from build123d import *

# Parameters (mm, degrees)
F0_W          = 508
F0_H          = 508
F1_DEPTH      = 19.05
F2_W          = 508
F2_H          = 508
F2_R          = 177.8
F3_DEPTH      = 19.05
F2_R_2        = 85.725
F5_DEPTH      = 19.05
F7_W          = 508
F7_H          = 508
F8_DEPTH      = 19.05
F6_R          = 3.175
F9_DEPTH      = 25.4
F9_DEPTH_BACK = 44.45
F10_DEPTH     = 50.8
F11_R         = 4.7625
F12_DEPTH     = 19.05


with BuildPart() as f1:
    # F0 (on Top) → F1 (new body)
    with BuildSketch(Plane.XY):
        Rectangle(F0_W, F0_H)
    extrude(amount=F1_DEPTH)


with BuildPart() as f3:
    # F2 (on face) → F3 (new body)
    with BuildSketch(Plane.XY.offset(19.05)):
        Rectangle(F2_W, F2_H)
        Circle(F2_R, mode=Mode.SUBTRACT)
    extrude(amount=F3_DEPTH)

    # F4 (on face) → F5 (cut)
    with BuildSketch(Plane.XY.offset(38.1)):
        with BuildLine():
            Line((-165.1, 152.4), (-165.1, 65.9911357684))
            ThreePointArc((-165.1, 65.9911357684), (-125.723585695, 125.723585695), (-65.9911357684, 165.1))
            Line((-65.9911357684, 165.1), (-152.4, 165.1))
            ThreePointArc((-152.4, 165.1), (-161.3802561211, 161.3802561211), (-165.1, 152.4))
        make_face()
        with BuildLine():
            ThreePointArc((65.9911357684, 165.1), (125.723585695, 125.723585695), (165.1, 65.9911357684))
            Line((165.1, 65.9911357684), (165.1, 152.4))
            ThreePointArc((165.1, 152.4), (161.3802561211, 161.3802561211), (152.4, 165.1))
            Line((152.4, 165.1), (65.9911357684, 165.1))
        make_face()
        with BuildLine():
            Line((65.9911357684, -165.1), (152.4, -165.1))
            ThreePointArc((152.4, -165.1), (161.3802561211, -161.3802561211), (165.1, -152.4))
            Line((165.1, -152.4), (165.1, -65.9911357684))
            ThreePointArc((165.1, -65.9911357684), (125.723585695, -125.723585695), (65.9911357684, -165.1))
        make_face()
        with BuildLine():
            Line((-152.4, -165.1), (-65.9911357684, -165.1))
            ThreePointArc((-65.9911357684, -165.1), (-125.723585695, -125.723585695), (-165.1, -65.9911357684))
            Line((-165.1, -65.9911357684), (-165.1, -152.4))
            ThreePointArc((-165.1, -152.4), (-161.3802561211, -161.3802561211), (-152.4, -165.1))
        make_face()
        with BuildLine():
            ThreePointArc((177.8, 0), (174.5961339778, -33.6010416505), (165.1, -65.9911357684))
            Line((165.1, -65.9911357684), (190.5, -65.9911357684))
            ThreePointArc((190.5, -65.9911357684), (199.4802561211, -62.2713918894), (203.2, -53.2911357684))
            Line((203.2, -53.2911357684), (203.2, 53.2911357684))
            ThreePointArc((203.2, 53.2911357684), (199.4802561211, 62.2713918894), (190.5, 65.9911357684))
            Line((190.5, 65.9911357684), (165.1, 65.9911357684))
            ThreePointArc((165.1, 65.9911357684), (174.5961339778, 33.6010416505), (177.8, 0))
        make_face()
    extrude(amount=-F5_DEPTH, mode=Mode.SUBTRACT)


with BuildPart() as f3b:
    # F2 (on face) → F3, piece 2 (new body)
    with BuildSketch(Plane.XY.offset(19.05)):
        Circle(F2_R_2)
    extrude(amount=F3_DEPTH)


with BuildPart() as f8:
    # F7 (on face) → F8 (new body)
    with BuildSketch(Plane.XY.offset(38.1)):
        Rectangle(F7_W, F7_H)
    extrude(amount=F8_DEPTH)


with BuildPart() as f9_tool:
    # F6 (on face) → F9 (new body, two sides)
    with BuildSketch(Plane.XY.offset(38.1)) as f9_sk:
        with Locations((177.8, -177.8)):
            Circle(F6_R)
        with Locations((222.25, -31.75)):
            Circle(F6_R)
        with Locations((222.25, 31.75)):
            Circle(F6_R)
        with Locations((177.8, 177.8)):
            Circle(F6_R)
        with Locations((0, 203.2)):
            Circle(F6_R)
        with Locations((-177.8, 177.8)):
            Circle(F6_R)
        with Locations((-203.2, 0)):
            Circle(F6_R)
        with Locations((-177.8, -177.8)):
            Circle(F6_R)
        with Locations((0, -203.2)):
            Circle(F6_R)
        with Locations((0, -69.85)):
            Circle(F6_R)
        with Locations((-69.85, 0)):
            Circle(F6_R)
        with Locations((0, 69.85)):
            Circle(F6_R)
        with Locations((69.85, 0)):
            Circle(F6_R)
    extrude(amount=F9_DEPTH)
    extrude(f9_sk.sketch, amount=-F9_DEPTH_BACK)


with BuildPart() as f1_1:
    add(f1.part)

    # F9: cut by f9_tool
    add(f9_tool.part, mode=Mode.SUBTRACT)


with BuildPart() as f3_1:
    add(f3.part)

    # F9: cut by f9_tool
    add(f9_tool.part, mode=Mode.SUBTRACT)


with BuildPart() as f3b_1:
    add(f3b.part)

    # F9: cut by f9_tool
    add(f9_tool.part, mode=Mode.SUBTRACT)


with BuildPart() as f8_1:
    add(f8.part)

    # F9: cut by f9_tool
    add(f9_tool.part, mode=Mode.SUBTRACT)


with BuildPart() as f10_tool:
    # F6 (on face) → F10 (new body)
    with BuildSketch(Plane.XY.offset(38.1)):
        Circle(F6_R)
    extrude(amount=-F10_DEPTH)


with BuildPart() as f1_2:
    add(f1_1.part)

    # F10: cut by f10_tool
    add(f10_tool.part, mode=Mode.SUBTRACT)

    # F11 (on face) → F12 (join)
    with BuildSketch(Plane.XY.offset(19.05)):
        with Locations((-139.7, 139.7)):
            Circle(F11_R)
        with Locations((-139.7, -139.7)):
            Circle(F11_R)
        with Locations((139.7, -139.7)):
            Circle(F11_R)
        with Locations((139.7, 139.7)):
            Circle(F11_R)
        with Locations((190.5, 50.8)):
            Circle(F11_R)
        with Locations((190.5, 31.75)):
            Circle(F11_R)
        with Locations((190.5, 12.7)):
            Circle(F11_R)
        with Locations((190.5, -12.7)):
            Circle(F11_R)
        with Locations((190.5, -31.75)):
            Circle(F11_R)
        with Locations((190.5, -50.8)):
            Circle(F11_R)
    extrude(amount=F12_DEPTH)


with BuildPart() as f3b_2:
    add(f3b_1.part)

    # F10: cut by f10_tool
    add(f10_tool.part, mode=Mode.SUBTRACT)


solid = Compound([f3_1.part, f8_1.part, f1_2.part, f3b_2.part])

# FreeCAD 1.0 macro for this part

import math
import FreeCAD as App
import Part
import Sketcher

V = App.Vector
Q = App.Units.Quantity


def add_polygon(sketch, points):
    """Adds a closed chain of lines whose ends are joined by coincident constraints."""
    first, n = sketch.GeometryCount, len(points)
    for a, b in zip(points, points[1:] + points[:1]):
        sketch.addGeometry(Part.LineSegment(App.Vector(*a, 0), App.Vector(*b, 0)), False)
    for i in range(n):
        sketch.addConstraint(Sketcher.Constraint("Coincident", first + i, 2, first + (i + 1) % n, 1))

doc = App.newDocument("Part")
body = doc.addObject("PartDesign::Body", "Body")

# Sketch on XY plane
sketch1 = body.newObject("Sketcher::SketchObject", "Sketch")
sketch1.AttachmentSupport = (doc.getObject("XY_Plane"), [""])
sketch1.MapMode = "FlatFace"
add_polygon(sketch1, [(-254, 254), (-254, -254), (254, -254), (254, 254)])  # lines 0-3
sketch1.addConstraint(Sketcher.Constraint("Vertical", 0))
sketch1.addConstraint(Sketcher.Constraint("Horizontal", 1))
sketch1.addConstraint(Sketcher.Constraint("Vertical", 2))
sketch1.addConstraint(Sketcher.Constraint("Horizontal", 3))
sketch1.addConstraint(Sketcher.Constraint("Symmetric", 0, 2, 2, 2, -1, 1))
sketch1.addConstraint(Sketcher.Constraint("Equal", 3, 0))
sketch1.addConstraint(Sketcher.Constraint("DistanceX", 1, 1, 1, 2, Q("20 in")))
pad1 = body.newObject("PartDesign::Pad", "Pad")
pad1.Profile = sketch1
pad1.Length = Q("0.75 in")
body2 = doc.addObject("PartDesign::Body", "Body001")

# Sketch on XY plane
sketch2 = body2.newObject("Sketcher::SketchObject", "Sketch001")
sketch2.AttachmentSupport = (doc.getObject("XY_Plane001"), [""])
sketch2.MapMode = "FlatFace"
sketch2.AttachmentOffset = App.Placement(V(0, 0, 0.75 * 25.4), App.Rotation())
add_polygon(sketch2, [(-254, 254), (-254, -254), (254, -254), (254, 254)])  # lines 0-3
sketch2.addGeometry(Part.Circle(V(0, 0, 0), V(0, 0, 1), 177.8), False)  # 4
sketch2.addConstraint(Sketcher.Constraint("Vertical", 0))
sketch2.addConstraint(Sketcher.Constraint("Horizontal", 1))
sketch2.addConstraint(Sketcher.Constraint("Vertical", 2))
sketch2.addConstraint(Sketcher.Constraint("Horizontal", 3))
sketch2.addConstraint(Sketcher.Constraint("Coincident", 4, 3, -1, 1))
sketch2.addConstraint(Sketcher.Constraint("Symmetric", 0, 2, 2, 2, -1, 1))
sketch2.addConstraint(Sketcher.Constraint("Equal", 3, 0))
sketch2.addConstraint(Sketcher.Constraint("Diameter", 4, Q("14 in")))
sketch2.addConstraint(Sketcher.Constraint("DistanceX", 1, 1, 1, 2, Q("20 in")))
pad2 = body2.newObject("PartDesign::Pad", "Pad001")
pad2.Profile = sketch2
pad2.Length = Q("0.75 in")

# Sketch on XY plane
sketch3 = body2.newObject("Sketcher::SketchObject", "Sketch002")
sketch3.AttachmentSupport = (doc.getObject("XY_Plane001"), [""])
sketch3.MapMode = "FlatFace"
sketch3.AttachmentOffset = App.Placement(V(0, 0, 1.5 * 25.4), App.Rotation())
sketch3.addGeometry(Part.LineSegment(V(-165.1, 152.4, 0), V(-165.1, 65.991136, 0)), False)
sketch3.addGeometry(Part.ArcOfCircle(Part.Circle(V(0, 0, 0), V(0, 0, 1), 177.8), math.radians(111.786789), math.radians(158.213211)), False)
sketch3.addGeometry(Part.LineSegment(V(-65.991136, 165.1, 0), V(-152.4, 165.1, 0)), False)
sketch3.addGeometry(Part.ArcOfCircle(Part.Circle(V(-152.4, 152.4, 0), V(0, 0, 1), 12.7), math.radians(90), math.radians(180)), False)
sketch3.addGeometry(Part.ArcOfCircle(Part.Circle(V(0, 0, 0), V(0, 0, 1), 177.8), math.radians(21.786789), math.radians(68.213211)), False)
sketch3.addGeometry(Part.LineSegment(V(165.1, 65.991136, 0), V(165.1, 152.4, 0)), False)
sketch3.addGeometry(Part.ArcOfCircle(Part.Circle(V(152.4, 152.4, 0), V(0, 0, 1), 12.7), math.radians(0), math.radians(90)), False)
sketch3.addGeometry(Part.LineSegment(V(152.4, 165.1, 0), V(65.991136, 165.1, 0)), False)
sketch3.addGeometry(Part.LineSegment(V(65.991136, -165.1, 0), V(152.4, -165.1, 0)), False)
sketch3.addGeometry(Part.ArcOfCircle(Part.Circle(V(152.4, -152.4, 0), V(0, 0, 1), 12.7), math.radians(-90), math.radians(0)), False)
sketch3.addGeometry(Part.LineSegment(V(165.1, -152.4, 0), V(165.1, -65.991136, 0)), False)
sketch3.addGeometry(Part.ArcOfCircle(Part.Circle(V(0, 0, 0), V(0, 0, 1), 177.8), math.radians(-68.213211), math.radians(-21.786789)), False)
sketch3.addGeometry(Part.LineSegment(V(-152.4, -165.1, 0), V(-65.991136, -165.1, 0)), False)
sketch3.addGeometry(Part.ArcOfCircle(Part.Circle(V(0, 0, 0), V(0, 0, 1), 177.8), math.radians(-158.213211), math.radians(-111.786789)), False)
sketch3.addGeometry(Part.LineSegment(V(-165.1, -65.991136, 0), V(-165.1, -152.4, 0)), False)
sketch3.addGeometry(Part.ArcOfCircle(Part.Circle(V(-152.4, -152.4, 0), V(0, 0, 1), 12.7), math.radians(180), math.radians(270)), False)
sketch3.addGeometry(Part.ArcOfCircle(Part.Circle(V(0, 0, 0), V(0, 0, 1), 177.8), math.radians(-21.786789), math.radians(0)), False)
sketch3.addGeometry(Part.LineSegment(V(165.1, -65.991136, 0), V(190.5, -65.991136, 0)), False)
sketch3.addGeometry(Part.ArcOfCircle(Part.Circle(V(190.5, -53.291136, 0), V(0, 0, 1), 12.7), math.radians(-90), math.radians(0)), False)
sketch3.addGeometry(Part.LineSegment(V(203.2, -53.291136, 0), V(203.2, 53.291136, 0)), False)
sketch3.addGeometry(Part.ArcOfCircle(Part.Circle(V(190.5, 53.291136, 0), V(0, 0, 1), 12.7), math.radians(0), math.radians(90)), False)
sketch3.addGeometry(Part.LineSegment(V(190.5, 65.991136, 0), V(165.1, 65.991136, 0)), False)
sketch3.addGeometry(Part.ArcOfCircle(Part.Circle(V(0, 0, 0), V(0, 0, 1), 177.8), math.radians(0), math.radians(21.786789)), False)
sketch3.addConstraint(Sketcher.Constraint("Coincident", 0, 2, 1, 2))
sketch3.addConstraint(Sketcher.Constraint("Coincident", 1, 1, 2, 1))
sketch3.addConstraint(Sketcher.Constraint("Tangent", 2, 2, 3, 1))
sketch3.addConstraint(Sketcher.Constraint("Tangent", 3, 2, 0, 1))
sketch3.addConstraint(Sketcher.Constraint("Coincident", 4, 1, 5, 1))
sketch3.addConstraint(Sketcher.Constraint("Tangent", 5, 2, 6, 1))
sketch3.addConstraint(Sketcher.Constraint("Tangent", 6, 2, 7, 1))
sketch3.addConstraint(Sketcher.Constraint("Coincident", 7, 2, 4, 2))
sketch3.addConstraint(Sketcher.Constraint("Tangent", 8, 2, 9, 1))
sketch3.addConstraint(Sketcher.Constraint("Tangent", 9, 2, 10, 1))
sketch3.addConstraint(Sketcher.Constraint("Coincident", 10, 2, 11, 2))
sketch3.addConstraint(Sketcher.Constraint("Coincident", 11, 1, 8, 1))
sketch3.addConstraint(Sketcher.Constraint("Coincident", 12, 2, 13, 2))
sketch3.addConstraint(Sketcher.Constraint("Coincident", 13, 1, 14, 1))
sketch3.addConstraint(Sketcher.Constraint("Tangent", 14, 2, 15, 1))
sketch3.addConstraint(Sketcher.Constraint("Tangent", 15, 2, 12, 1))
sketch3.addConstraint(Sketcher.Constraint("Coincident", 16, 1, 17, 1))
sketch3.addConstraint(Sketcher.Constraint("Tangent", 17, 2, 18, 1))
sketch3.addConstraint(Sketcher.Constraint("Tangent", 18, 2, 19, 1))
sketch3.addConstraint(Sketcher.Constraint("Tangent", 19, 2, 20, 1))
sketch3.addConstraint(Sketcher.Constraint("Tangent", 20, 2, 21, 1))
sketch3.addConstraint(Sketcher.Constraint("Coincident", 21, 2, 22, 2))
sketch3.addConstraint(Sketcher.Constraint("Tangent", 22, 1, 16, 2))
sketch3.addConstraint(Sketcher.Constraint("Vertical", 0))
sketch3.addConstraint(Sketcher.Constraint("Horizontal", 2))
sketch3.addConstraint(Sketcher.Constraint("Vertical", 5))
sketch3.addConstraint(Sketcher.Constraint("Horizontal", 7))
sketch3.addConstraint(Sketcher.Constraint("Horizontal", 8))
sketch3.addConstraint(Sketcher.Constraint("Vertical", 10))
sketch3.addConstraint(Sketcher.Constraint("Horizontal", 12))
sketch3.addConstraint(Sketcher.Constraint("Vertical", 14))
sketch3.addConstraint(Sketcher.Constraint("Horizontal", 17))
sketch3.addConstraint(Sketcher.Constraint("Vertical", 19))
sketch3.addConstraint(Sketcher.Constraint("Horizontal", 21))
sketch3.addConstraint(Sketcher.Constraint("Coincident", 1, 3, -1, 1))
sketch3.addConstraint(Sketcher.Constraint("Coincident", 4, 3, -1, 1))
sketch3.addConstraint(Sketcher.Constraint("Coincident", 11, 3, -1, 1))
sketch3.addConstraint(Sketcher.Constraint("Coincident", 13, 3, -1, 1))
sketch3.addConstraint(Sketcher.Constraint("Coincident", 16, 3, -1, 1))
sketch3.addConstraint(Sketcher.Constraint("Coincident", 16, 1, 10, 2))
sketch3.addConstraint(Sketcher.Constraint("Coincident", 21, 2, 4, 1))
sketch3.addConstraint(Sketcher.Constraint("Equal", 1, 4))
sketch3.addConstraint(Sketcher.Constraint("Equal", 3, 6))
sketch3.addConstraint(Sketcher.Constraint("Equal", 6, 9))
sketch3.addConstraint(Sketcher.Constraint("Equal", 4, 11))
sketch3.addConstraint(Sketcher.Constraint("Equal", 11, 13))
sketch3.addConstraint(Sketcher.Constraint("Equal", 9, 15))
sketch3.addConstraint(Sketcher.Constraint("Equal", 15, 18))
sketch3.addConstraint(Sketcher.Constraint("Equal", 18, 20))
sketch3.addConstraint(Sketcher.Constraint("Symmetric", 3, 3, 9, 3, -1, 1))
sketch3.addConstraint(Sketcher.Constraint("Symmetric", 6, 3, 15, 3, -1, 1))
sketch3.addConstraint(Sketcher.Constraint("Symmetric", 3, 3, 6, 3, -2))
sketch3.addConstraint(Sketcher.Constraint("PointOnObject", 22, 1, -1))
sketch3.addConstraint(Sketcher.Constraint("Equal", 12, 0))
sketch3.addConstraint(Sketcher.Constraint("Radius", 1, Q("7 in")))
sketch3.addConstraint(Sketcher.Constraint("Radius", 3, Q("0.5 in")))
sketch3.addConstraint(Sketcher.Constraint("DistanceX", 17, 1, 17, 2, Q("1 in")))
sketch3.addConstraint(Sketcher.Constraint("DistanceX", 3, 3, -1, 1, Q("6 in")))
pocket1 = body2.newObject("PartDesign::Pocket", "Pocket")
pocket1.Profile = sketch3
pocket1.Length = Q("0.75 in")
body3 = doc.addObject("PartDesign::Body", "Body002")

# Sketch on XY plane
sketch4 = body3.newObject("Sketcher::SketchObject", "Sketch003")
sketch4.AttachmentSupport = (doc.getObject("XY_Plane002"), [""])
sketch4.MapMode = "FlatFace"
sketch4.AttachmentOffset = App.Placement(V(0, 0, 0.75 * 25.4), App.Rotation())
sketch4.addGeometry(Part.Circle(V(0, 0, 0), V(0, 0, 1), 85.725), False)
sketch4.addConstraint(Sketcher.Constraint("Coincident", 0, 3, -1, 1))
sketch4.addConstraint(Sketcher.Constraint("Diameter", 0, Q("6.75 in")))
pad3 = body3.newObject("PartDesign::Pad", "Pad002")
pad3.Profile = sketch4
pad3.Length = Q("0.75 in")
body4 = doc.addObject("PartDesign::Body", "Body003")

# Sketch on XY plane
sketch5 = body4.newObject("Sketcher::SketchObject", "Sketch004")
sketch5.AttachmentSupport = (doc.getObject("XY_Plane003"), [""])
sketch5.MapMode = "FlatFace"
sketch5.AttachmentOffset = App.Placement(V(0, 0, 1.5 * 25.4), App.Rotation())
add_polygon(sketch5, [(-254, 254), (-254, -254), (254, -254), (254, 254)])  # lines 0-3
sketch5.addConstraint(Sketcher.Constraint("Vertical", 0))
sketch5.addConstraint(Sketcher.Constraint("Horizontal", 1))
sketch5.addConstraint(Sketcher.Constraint("Vertical", 2))
sketch5.addConstraint(Sketcher.Constraint("Horizontal", 3))
sketch5.addConstraint(Sketcher.Constraint("Symmetric", 0, 2, 2, 2, -1, 1))
sketch5.addConstraint(Sketcher.Constraint("Equal", 3, 0))
sketch5.addConstraint(Sketcher.Constraint("DistanceX", 1, 1, 1, 2, Q("20 in")))
pad4 = body4.newObject("PartDesign::Pad", "Pad003")
pad4.Profile = sketch5
pad4.Length = Q("0.75 in")
body5 = doc.addObject("PartDesign::Body", "Body004")
body5.AllowCompound = True

# Sketch on XY plane
sketch6 = body5.newObject("Sketcher::SketchObject", "Sketch005")
sketch6.AttachmentSupport = (doc.getObject("XY_Plane004"), [""])
sketch6.MapMode = "FlatFace"
sketch6.AttachmentOffset = App.Placement(V(0, 0, 1.5 * 25.4), App.Rotation())
sketch6.addGeometry(Part.Circle(V(177.8, -177.8, 0), V(0, 0, 1), 3.175), False)
sketch6.addGeometry(Part.Circle(V(222.25, -31.75, 0), V(0, 0, 1), 3.175), False)
sketch6.addGeometry(Part.Circle(V(222.25, 31.75, 0), V(0, 0, 1), 3.175), False)
sketch6.addGeometry(Part.Circle(V(177.8, 177.8, 0), V(0, 0, 1), 3.175), False)
sketch6.addGeometry(Part.Circle(V(0, 203.2, 0), V(0, 0, 1), 3.175), False)
sketch6.addGeometry(Part.Circle(V(-177.8, 177.8, 0), V(0, 0, 1), 3.175), False)
sketch6.addGeometry(Part.Circle(V(-203.2, 0, 0), V(0, 0, 1), 3.175), False)
sketch6.addGeometry(Part.Circle(V(-177.8, -177.8, 0), V(0, 0, 1), 3.175), False)
sketch6.addGeometry(Part.Circle(V(0, -203.2, 0), V(0, 0, 1), 3.175), False)
sketch6.addGeometry(Part.Circle(V(0, -69.85, 0), V(0, 0, 1), 3.175), False)
sketch6.addGeometry(Part.Circle(V(-69.85, 0, 0), V(0, 0, 1), 3.175), False)
sketch6.addGeometry(Part.Circle(V(0, 69.85, 0), V(0, 0, 1), 3.175), False)
sketch6.addGeometry(Part.Circle(V(69.85, 0, 0), V(0, 0, 1), 3.175), False)
sketch6.addConstraint(Sketcher.Constraint("Equal", 0, 1))
sketch6.addConstraint(Sketcher.Constraint("Equal", 1, 2))
sketch6.addConstraint(Sketcher.Constraint("Equal", 2, 3))
sketch6.addConstraint(Sketcher.Constraint("Equal", 3, 4))
sketch6.addConstraint(Sketcher.Constraint("Equal", 4, 5))
sketch6.addConstraint(Sketcher.Constraint("Equal", 5, 6))
sketch6.addConstraint(Sketcher.Constraint("Equal", 6, 7))
sketch6.addConstraint(Sketcher.Constraint("Equal", 7, 8))
sketch6.addConstraint(Sketcher.Constraint("Equal", 8, 9))
sketch6.addConstraint(Sketcher.Constraint("Equal", 9, 10))
sketch6.addConstraint(Sketcher.Constraint("Equal", 10, 11))
sketch6.addConstraint(Sketcher.Constraint("Equal", 11, 12))
sketch6.addConstraint(Sketcher.Constraint("Symmetric", 0, 3, 5, 3, -1, 1))
sketch6.addConstraint(Sketcher.Constraint("Symmetric", 3, 3, 7, 3, -1, 1))
sketch6.addConstraint(Sketcher.Constraint("Symmetric", 4, 3, 8, 3, -1, 1))
sketch6.addConstraint(Sketcher.Constraint("Symmetric", 9, 3, 11, 3, -1, 1))
sketch6.addConstraint(Sketcher.Constraint("Symmetric", 10, 3, 12, 3, -1, 1))
sketch6.addConstraint(Sketcher.Constraint("Symmetric", 3, 3, 5, 3, -2))
sketch6.addConstraint(Sketcher.Constraint("Symmetric", 1, 3, 2, 3, -1))
sketch6.addConstraint(Sketcher.Constraint("PointOnObject", 4, 3, -2))
sketch6.addConstraint(Sketcher.Constraint("PointOnObject", 6, 3, -1))
sketch6.addConstraint(Sketcher.Constraint("PointOnObject", 9, 3, -2))
sketch6.addConstraint(Sketcher.Constraint("PointOnObject", 10, 3, -1))
sketch6.addConstraint(Sketcher.Constraint("Diameter", 0, Q("0.25 in")))
sketch6.addConstraint(Sketcher.Constraint("DistanceX", -1, 1, 0, 3, Q("7 in")))
sketch6.addConstraint(Sketcher.Constraint("DistanceY", 0, 3, -1, 1, Q("7 in")))
sketch6.addConstraint(Sketcher.Constraint("DistanceY", -1, 1, 4, 3, Q("8 in")))
sketch6.addConstraint(Sketcher.Constraint("DistanceX", 6, 3, -1, 1, Q("8 in")))
sketch6.addConstraint(Sketcher.Constraint("DistanceX", 12, 3, 1, 3, Q("6 in")))
sketch6.addConstraint(Sketcher.Constraint("DistanceY", 1, 3, 2, 3, Q("2.5 in")))
sketch6.addConstraint(Sketcher.Constraint("DistanceY", 9, 3, 1, 3, Q("1.5 in")))
sketch6.addConstraint(Sketcher.Constraint("DistanceX", 10, 3, 12, 3, Q("5.5 in")))
pad5 = body5.newObject("PartDesign::Pad", "Pad004")
pad5.Profile = sketch6
pad5.Type = "TwoLengths"
pad5.Length = Q("1 in")
pad5.Length2 = Q("1.75 in")
doc.recompute()

body6 = doc.addObject("PartDesign::Body", "Body005")
body6.BaseFeature = body5
boolean = body.newObject("PartDesign::Boolean", "Boolean")
boolean.Type = "Cut"
boolean.addObjects([body6])
doc.recompute()

body7 = doc.addObject("PartDesign::Body", "Body006")
body7.BaseFeature = body5
boolean2 = body2.newObject("PartDesign::Boolean", "Boolean001")
boolean2.Type = "Cut"
boolean2.addObjects([body7])
doc.recompute()

body8 = doc.addObject("PartDesign::Body", "Body007")
body8.BaseFeature = body5
boolean3 = body3.newObject("PartDesign::Boolean", "Boolean002")
boolean3.Type = "Cut"
boolean3.addObjects([body8])
doc.recompute()

boolean4 = body4.newObject("PartDesign::Boolean", "Boolean003")
boolean4.Type = "Cut"
boolean4.addObjects([body5])
body9 = doc.addObject("PartDesign::Body", "Body008")

# Sketch on XY plane
sketch7 = body9.newObject("Sketcher::SketchObject", "Sketch006")
sketch7.AttachmentSupport = (doc.getObject("XY_Plane008"), [""])
sketch7.MapMode = "FlatFace"
sketch7.AttachmentOffset = App.Placement(V(0, 0, 1.5 * 25.4), App.Rotation())
sketch7.addGeometry(Part.Circle(V(0, 0, 0), V(0, 0, 1), 3.175), False)
sketch7.addConstraint(Sketcher.Constraint("Coincident", 0, 3, -1, 1))
sketch7.addConstraint(Sketcher.Constraint("Diameter", 0, Q("0.25 in")))
pad6 = body9.newObject("PartDesign::Pad", "Pad005")
pad6.Profile = sketch7
pad6.Length = Q("2 in")
pad6.Reversed = True
doc.recompute()

body10 = doc.addObject("PartDesign::Body", "Body009")
body10.BaseFeature = body9
boolean5 = body.newObject("PartDesign::Boolean", "Boolean004")
boolean5.Type = "Cut"
boolean5.addObjects([body10])
doc.recompute()

# Sketch on XY plane
sketch8 = body.newObject("Sketcher::SketchObject", "Sketch007")
sketch8.AttachmentSupport = (doc.getObject("XY_Plane"), [""])
sketch8.MapMode = "FlatFace"
sketch8.AttachmentOffset = App.Placement(V(0, 0, 0.75 * 25.4), App.Rotation())
sketch8.addGeometry(Part.Circle(V(-139.7, 139.7, 0), V(0, 0, 1), 4.7625), False)
sketch8.addGeometry(Part.Circle(V(-139.7, -139.7, 0), V(0, 0, 1), 4.7625), False)
sketch8.addGeometry(Part.Circle(V(139.7, -139.7, 0), V(0, 0, 1), 4.7625), False)
sketch8.addGeometry(Part.Circle(V(139.7, 139.7, 0), V(0, 0, 1), 4.7625), False)
sketch8.addGeometry(Part.Circle(V(190.5, 50.8, 0), V(0, 0, 1), 4.7625), False)
sketch8.addGeometry(Part.Circle(V(190.5, 31.75, 0), V(0, 0, 1), 4.7625), False)
sketch8.addGeometry(Part.Circle(V(190.5, 12.7, 0), V(0, 0, 1), 4.7625), False)
sketch8.addGeometry(Part.Circle(V(190.5, -12.7, 0), V(0, 0, 1), 4.7625), False)
sketch8.addGeometry(Part.Circle(V(190.5, -31.75, 0), V(0, 0, 1), 4.7625), False)
sketch8.addGeometry(Part.Circle(V(190.5, -50.8, 0), V(0, 0, 1), 4.7625), False)
sketch8.addConstraint(Sketcher.Constraint("Equal", 0, 1))
sketch8.addConstraint(Sketcher.Constraint("Equal", 1, 2))
sketch8.addConstraint(Sketcher.Constraint("Equal", 2, 3))
sketch8.addConstraint(Sketcher.Constraint("Equal", 3, 4))
sketch8.addConstraint(Sketcher.Constraint("Equal", 4, 5))
sketch8.addConstraint(Sketcher.Constraint("Equal", 5, 6))
sketch8.addConstraint(Sketcher.Constraint("Equal", 6, 7))
sketch8.addConstraint(Sketcher.Constraint("Equal", 7, 8))
sketch8.addConstraint(Sketcher.Constraint("Equal", 8, 9))
sketch8.addConstraint(Sketcher.Constraint("Symmetric", 0, 3, 2, 3, -1, 1))
sketch8.addConstraint(Sketcher.Constraint("Symmetric", 1, 3, 3, 3, -1, 1))
sketch8.addConstraint(Sketcher.Constraint("Symmetric", 1, 3, 2, 3, -2))
sketch8.addConstraint(Sketcher.Constraint("Symmetric", 6, 3, 7, 3, -1))
sketch8.addConstraint(Sketcher.Constraint("Symmetric", 5, 3, 8, 3, -1))
sketch8.addConstraint(Sketcher.Constraint("Symmetric", 4, 3, 9, 3, -1))
sketch8.addConstraint(Sketcher.Constraint("Vertical", 4, 3, 5, 3))
sketch8.addConstraint(Sketcher.Constraint("Vertical", 5, 3, 6, 3))
sketch8.addConstraint(Sketcher.Constraint("Diameter", 0, Q("0.375 in")))
sketch8.addConstraint(Sketcher.Constraint("DistanceY", -1, 1, 4, 3, Q("2 in")))
sketch8.addConstraint(Sketcher.Constraint("DistanceY", 1, 3, 0, 3, Q("11 in")))
sketch8.addConstraint(Sketcher.Constraint("DistanceX", 1, 3, 2, 3, Q("11 in")))
sketch8.addConstraint(Sketcher.Constraint("DistanceX", 3, 3, 4, 3, Q("2 in")))
sketch8.addConstraint(Sketcher.Constraint("DistanceY", 6, 3, 3, 3, Q("5 in")))
sketch8.addConstraint(Sketcher.Constraint("DistanceY", 8, 3, 5, 3, Q("2.5 in")))
pad7 = body.newObject("PartDesign::Pad", "Pad006")
pad7.Profile = sketch8
pad7.Length = Q("0.75 in")
doc.recompute()

boolean6 = body3.newObject("PartDesign::Boolean", "Boolean005")
boolean6.Type = "Cut"
boolean6.addObjects([body9])

doc.recompute()
